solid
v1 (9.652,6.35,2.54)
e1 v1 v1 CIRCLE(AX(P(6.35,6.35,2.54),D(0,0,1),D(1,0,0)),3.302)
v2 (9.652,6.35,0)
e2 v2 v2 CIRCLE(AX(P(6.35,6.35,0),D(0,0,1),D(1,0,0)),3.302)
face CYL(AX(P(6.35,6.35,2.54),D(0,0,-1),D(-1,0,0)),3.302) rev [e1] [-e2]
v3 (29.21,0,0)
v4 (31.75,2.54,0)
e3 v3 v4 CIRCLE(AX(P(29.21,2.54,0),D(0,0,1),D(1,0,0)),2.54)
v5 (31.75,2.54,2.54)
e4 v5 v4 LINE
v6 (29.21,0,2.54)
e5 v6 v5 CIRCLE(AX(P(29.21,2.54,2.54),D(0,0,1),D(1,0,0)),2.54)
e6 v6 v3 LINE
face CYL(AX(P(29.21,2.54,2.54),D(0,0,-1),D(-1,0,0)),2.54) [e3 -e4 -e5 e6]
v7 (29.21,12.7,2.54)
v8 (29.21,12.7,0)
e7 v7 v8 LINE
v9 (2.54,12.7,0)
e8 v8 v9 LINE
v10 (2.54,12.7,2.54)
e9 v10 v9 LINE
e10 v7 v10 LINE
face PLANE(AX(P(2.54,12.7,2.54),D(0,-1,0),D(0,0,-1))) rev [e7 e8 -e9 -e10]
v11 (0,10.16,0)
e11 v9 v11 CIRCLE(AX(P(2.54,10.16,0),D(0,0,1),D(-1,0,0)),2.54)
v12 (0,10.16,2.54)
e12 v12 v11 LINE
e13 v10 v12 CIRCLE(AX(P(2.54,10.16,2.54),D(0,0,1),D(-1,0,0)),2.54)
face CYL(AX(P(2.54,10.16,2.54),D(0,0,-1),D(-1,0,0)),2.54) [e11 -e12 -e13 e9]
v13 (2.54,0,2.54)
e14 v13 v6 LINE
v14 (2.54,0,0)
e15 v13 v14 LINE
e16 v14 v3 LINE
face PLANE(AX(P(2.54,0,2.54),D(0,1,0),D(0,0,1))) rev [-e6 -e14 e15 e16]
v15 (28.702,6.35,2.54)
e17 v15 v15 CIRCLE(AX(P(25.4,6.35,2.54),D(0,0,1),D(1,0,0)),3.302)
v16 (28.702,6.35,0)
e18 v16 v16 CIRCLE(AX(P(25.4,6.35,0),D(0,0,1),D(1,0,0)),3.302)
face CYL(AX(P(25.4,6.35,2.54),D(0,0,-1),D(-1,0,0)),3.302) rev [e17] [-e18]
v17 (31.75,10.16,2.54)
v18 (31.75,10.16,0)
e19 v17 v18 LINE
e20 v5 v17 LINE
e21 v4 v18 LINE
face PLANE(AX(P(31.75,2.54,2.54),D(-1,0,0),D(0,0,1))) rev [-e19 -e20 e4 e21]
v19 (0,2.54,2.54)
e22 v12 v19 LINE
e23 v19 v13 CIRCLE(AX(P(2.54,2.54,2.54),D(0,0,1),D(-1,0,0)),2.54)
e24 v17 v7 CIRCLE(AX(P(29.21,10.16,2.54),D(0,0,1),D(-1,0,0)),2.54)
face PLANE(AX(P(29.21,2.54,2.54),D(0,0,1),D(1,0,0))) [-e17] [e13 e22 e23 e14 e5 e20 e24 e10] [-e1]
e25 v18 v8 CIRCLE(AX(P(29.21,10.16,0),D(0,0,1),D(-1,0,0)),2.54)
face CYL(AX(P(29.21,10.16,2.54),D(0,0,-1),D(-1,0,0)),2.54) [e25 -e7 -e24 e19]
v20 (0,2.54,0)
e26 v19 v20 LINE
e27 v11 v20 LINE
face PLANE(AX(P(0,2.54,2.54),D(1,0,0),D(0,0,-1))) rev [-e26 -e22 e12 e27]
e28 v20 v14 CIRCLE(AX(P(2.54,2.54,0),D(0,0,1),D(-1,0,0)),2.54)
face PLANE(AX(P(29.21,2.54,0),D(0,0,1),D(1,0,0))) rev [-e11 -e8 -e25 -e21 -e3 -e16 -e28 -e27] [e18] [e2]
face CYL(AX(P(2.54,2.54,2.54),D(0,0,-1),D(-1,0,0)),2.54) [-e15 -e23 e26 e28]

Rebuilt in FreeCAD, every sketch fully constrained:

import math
import FreeCAD as App
import Part
import Sketcher

V = App.Vector
Q = App.Units.Quantity

doc = App.newDocument("Part")
body = doc.addObject("PartDesign::Body", "Body")

sketch1 = doc.addObject("Sketcher::SketchObject", "Sketch")
body.addObject(sketch1)
sketch1.AttachmentSupport = (doc.XY_Plane, [""])
sketch1.MapMode = "FlatFace"
sketch1.addGeometry([
    Part.LineSegment(V(2.54, 0, 0), V(29.21, 0, 0)),
    Part.ArcOfCircle(Part.Circle(V(29.21, 2.54, 0), V(0, 0, 1), 2.54), math.radians(-90), math.radians(0)),
    Part.LineSegment(V(31.75, 2.54, 0), V(31.75, 10.16, 0)),
    Part.ArcOfCircle(Part.Circle(V(29.21, 10.16, 0), V(0, 0, 1), 2.54), math.radians(0), math.radians(90)),
    Part.LineSegment(V(29.21, 12.7, 0), V(2.54, 12.7, 0)),
    Part.ArcOfCircle(Part.Circle(V(2.54, 10.16, 0), V(0, 0, 1), 2.54), math.radians(90), math.radians(180)),
    Part.LineSegment(V(0, 10.16, 0), V(0, 2.54, 0)),
    Part.ArcOfCircle(Part.Circle(V(2.54, 2.54, 0), V(0, 0, 1), 2.54), math.radians(-180), math.radians(-90)),
    Part.Circle(V(6.35, 6.35, 0), V(0, 0, 1), 3.302),
    Part.Circle(V(25.4, 6.35, 0), V(0, 0, 1), 3.302),
], False)
sketch1.addConstraint([
    Sketcher.Constraint("Tangent", 0, 2, 1, 1),
    Sketcher.Constraint("Tangent", 1, 2, 2, 1),
    Sketcher.Constraint("Tangent", 2, 2, 3, 1),
    Sketcher.Constraint("Tangent", 3, 2, 4, 1),
    Sketcher.Constraint("Tangent", 4, 2, 5, 1),
    Sketcher.Constraint("Tangent", 5, 2, 6, 1),
    Sketcher.Constraint("Tangent", 6, 2, 7, 1),
    Sketcher.Constraint("Tangent", 7, 2, 0, 1),
    Sketcher.Constraint("Horizontal", 0),
    Sketcher.Constraint("Vertical", 2),
    Sketcher.Constraint("Horizontal", 4),
    Sketcher.Constraint("Vertical", 6),
    Sketcher.Constraint("Equal", 1, 3),
    Sketcher.Constraint("Equal", 3, 5),
    Sketcher.Constraint("Equal", 5, 7),
    Sketcher.Constraint("Equal", 8, 9),
    Sketcher.Constraint("PointOnObject", 0, 2, -1),
    Sketcher.Constraint("PointOnObject", 5, 2, -2),
    Sketcher.Constraint("Horizontal", 8, 3, 9, 3),
    Sketcher.Constraint("Radius", 1, Q("0.1 in")),
    Sketcher.Constraint("Diameter", 8, Q("0.26 in")),
    Sketcher.Constraint("DistanceY", 2, 1, 2, 2, Q("0.3 in")),
    Sketcher.Constraint("DistanceX", -1, 1, 9, 3, Q("1 in")),
    Sketcher.Constraint("DistanceX", 8, 3, 1, 2, Q("1 in")),
    Sketcher.Constraint("DistanceX", 0, 1, 0, 2, Q("1.05 in")),
    Sketcher.Constraint("DistanceY", -1, 1, 8, 3, Q("0.25 in")),
])
pad1 = doc.addObject("PartDesign::Pad", "Pad")
body.addObject(pad1)
pad1.Profile = sketch1
pad1.Length = Q("0.1 in")

doc.recompute()
